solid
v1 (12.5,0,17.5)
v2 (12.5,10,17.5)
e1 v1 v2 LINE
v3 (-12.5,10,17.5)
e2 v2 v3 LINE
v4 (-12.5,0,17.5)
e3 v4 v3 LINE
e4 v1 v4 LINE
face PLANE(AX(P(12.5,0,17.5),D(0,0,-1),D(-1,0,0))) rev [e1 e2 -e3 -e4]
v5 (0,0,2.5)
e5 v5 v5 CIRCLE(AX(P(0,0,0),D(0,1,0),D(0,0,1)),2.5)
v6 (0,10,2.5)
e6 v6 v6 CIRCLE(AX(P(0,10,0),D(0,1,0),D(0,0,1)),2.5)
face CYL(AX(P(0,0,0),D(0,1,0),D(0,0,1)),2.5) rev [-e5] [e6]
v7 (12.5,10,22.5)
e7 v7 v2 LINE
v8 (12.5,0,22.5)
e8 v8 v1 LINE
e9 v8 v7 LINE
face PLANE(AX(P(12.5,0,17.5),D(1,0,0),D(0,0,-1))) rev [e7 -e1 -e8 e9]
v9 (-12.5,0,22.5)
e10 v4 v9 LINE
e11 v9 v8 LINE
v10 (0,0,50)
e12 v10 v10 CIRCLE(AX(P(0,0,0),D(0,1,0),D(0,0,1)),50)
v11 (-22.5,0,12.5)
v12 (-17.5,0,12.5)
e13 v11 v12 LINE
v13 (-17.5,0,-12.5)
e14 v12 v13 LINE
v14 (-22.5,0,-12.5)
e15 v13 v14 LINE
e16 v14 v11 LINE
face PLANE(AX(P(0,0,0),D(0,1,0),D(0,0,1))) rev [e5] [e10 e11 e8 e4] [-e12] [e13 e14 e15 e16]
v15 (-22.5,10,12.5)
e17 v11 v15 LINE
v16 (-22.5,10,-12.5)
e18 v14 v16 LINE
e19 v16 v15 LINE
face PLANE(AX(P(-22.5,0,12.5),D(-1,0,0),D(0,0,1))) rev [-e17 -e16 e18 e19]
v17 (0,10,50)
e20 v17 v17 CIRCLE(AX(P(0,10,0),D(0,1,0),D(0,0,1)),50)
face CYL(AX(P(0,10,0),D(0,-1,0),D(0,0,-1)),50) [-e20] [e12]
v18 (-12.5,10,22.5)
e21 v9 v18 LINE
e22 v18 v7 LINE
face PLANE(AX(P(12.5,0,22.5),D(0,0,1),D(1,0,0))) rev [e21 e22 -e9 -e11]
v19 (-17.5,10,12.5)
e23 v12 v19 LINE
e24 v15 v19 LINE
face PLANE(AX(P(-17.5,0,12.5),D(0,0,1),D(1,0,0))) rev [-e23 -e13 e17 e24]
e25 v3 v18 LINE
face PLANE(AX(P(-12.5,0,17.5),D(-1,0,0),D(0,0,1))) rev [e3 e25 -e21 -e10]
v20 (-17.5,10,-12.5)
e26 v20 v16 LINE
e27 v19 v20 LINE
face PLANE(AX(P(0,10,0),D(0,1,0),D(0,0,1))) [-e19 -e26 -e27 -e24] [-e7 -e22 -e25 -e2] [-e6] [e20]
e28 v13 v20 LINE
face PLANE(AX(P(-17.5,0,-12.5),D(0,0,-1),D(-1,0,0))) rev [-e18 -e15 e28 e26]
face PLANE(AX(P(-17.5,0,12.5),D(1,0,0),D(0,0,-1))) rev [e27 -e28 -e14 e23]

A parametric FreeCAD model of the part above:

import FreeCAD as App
import Part
import Sketcher

V = App.Vector

doc = App.newDocument("Part")
params = doc.addObject("Spreadsheet::Sheet", "Params")
for row, (alias, value) in enumerate([
    ("sketch1_diameter", "100 mm"),
    ("pad1_length", "10 mm"),
    ("sketch2_diameter", "5 mm"),
    ("sketch2_width", "5 mm"),
    ("sketch2_width2", "25 mm"),
], start=1):
    params.set(f"A{row}", alias)
    params.set(f"B{row}", "=" + value)
    params.setAlias(f"B{row}", alias)

body = doc.addObject("PartDesign::Body", "Body")

# Sketch on XZ plane
sketch1 = body.newObject("Sketcher::SketchObject", "Sketch")
sketch1.AttachmentSupport = (doc.getObject("XZ_Plane"), [""])
sketch1.MapMode = "FlatFace"
sketch1.addGeometry(Part.Circle(V(0, 0, 0), V(0, 0, 1), 50), False)
sketch1.addConstraint([
    Sketcher.Constraint("Coincident", 0, 3, -1, 1),
    Sketcher.Constraint("Diameter", 0, 100.0),
])
sketch1.setExpression("Constraints[1]", "Params.sketch1_diameter")
pad1 = body.newObject("PartDesign::Pad", "Pad")
pad1.Profile = sketch1
pad1.setExpression("Length", "Params.pad1_length")
pad1.Reversed = True

# Sketch on XZ plane
sketch2 = body.newObject("Sketcher::SketchObject", "Sketch001")
sketch2.AttachmentSupport = (doc.getObject("XZ_Plane"), [""])
sketch2.MapMode = "FlatFace"
sketch2.AttachmentOffset = App.Placement(V(0, 0, -10), App.Rotation())
sketch2.addGeometry([
    Part.Circle(V(0, 0, 0), V(0, 0, 1), 2.5),  # 0
    Part.LineSegment(V(-22.5, -12.5, 0), V(-22.5, 12.5, 0)),  # 1
    Part.LineSegment(V(-22.5, 12.5, 0), V(-17.5, 12.5, 0)),  # 2
    Part.LineSegment(V(-17.5, 12.5, 0), V(-17.5, -12.5, 0)),  # 3
    Part.LineSegment(V(-17.5, -12.5, 0), V(-22.5, -12.5, 0)),  # 4
    Part.LineSegment(V(-12.5, 17.5, 0), V(-12.5, 22.5, 0)),  # 5
    Part.LineSegment(V(-12.5, 22.5, 0), V(12.5, 22.5, 0)),  # 6
    Part.LineSegment(V(12.5, 22.5, 0), V(12.5, 17.5, 0)),  # 7
    Part.LineSegment(V(12.5, 17.5, 0), V(-12.5, 17.5, 0)),  # 8
], False)
sketch2.addConstraint([
    Sketcher.Constraint("Coincident", 1, 2, 2, 1),
    Sketcher.Constraint("Coincident", 2, 2, 3, 1),
    Sketcher.Constraint("Coincident", 3, 2, 4, 1),
    Sketcher.Constraint("Coincident", 4, 2, 1, 1),
    Sketcher.Constraint("Coincident", 5, 2, 6, 1),
    Sketcher.Constraint("Coincident", 6, 2, 7, 1),
    Sketcher.Constraint("Coincident", 7, 2, 8, 1),
    Sketcher.Constraint("Coincident", 8, 2, 5, 1),
    Sketcher.Constraint("Vertical", 1),
    Sketcher.Constraint("Horizontal", 2),
    Sketcher.Constraint("Vertical", 3),
    Sketcher.Constraint("Horizontal", 4),
    Sketcher.Constraint("Vertical", 5),
    Sketcher.Constraint("Horizontal", 6),
    Sketcher.Constraint("Vertical", 7),
    Sketcher.Constraint("Horizontal", 8),
    Sketcher.Constraint("Coincident", 0, 3, -1, 1),
    Sketcher.Constraint("Equal", 8, 1),
    Sketcher.Constraint("Equal", 4, 5),
    Sketcher.Constraint("Diameter", 0, 5.0),
    Sketcher.Constraint("DistanceX", 2, 1, 2, 2, 5.0),
    Sketcher.Constraint("DistanceX", 6, 1, 6, 2, 25.0),
    Sketcher.Constraint("DistanceX", 2, 2, 5, 2, 5.0),
    Sketcher.Constraint("DistanceY", 2, 2, 5, 2, 10.0),
    Sketcher.Constraint("DistanceX", 1, 2, -1, 1, 22.5),
    Sketcher.Constraint("DistanceY", -1, 1, 1, 2, 12.5),
])
sketch2.setExpression("Constraints[19]", "Params.sketch2_diameter")
sketch2.setExpression("Constraints[20]", "Params.sketch2_width")
sketch2.setExpression("Constraints[21]", "Params.sketch2_width2")
pocket1 = body.newObject("PartDesign::Pocket", "Pocket")
pocket1.Profile = sketch2
pocket1.Type = "ThroughAll"
pocket1.Reversed = True

doc.recompute()
